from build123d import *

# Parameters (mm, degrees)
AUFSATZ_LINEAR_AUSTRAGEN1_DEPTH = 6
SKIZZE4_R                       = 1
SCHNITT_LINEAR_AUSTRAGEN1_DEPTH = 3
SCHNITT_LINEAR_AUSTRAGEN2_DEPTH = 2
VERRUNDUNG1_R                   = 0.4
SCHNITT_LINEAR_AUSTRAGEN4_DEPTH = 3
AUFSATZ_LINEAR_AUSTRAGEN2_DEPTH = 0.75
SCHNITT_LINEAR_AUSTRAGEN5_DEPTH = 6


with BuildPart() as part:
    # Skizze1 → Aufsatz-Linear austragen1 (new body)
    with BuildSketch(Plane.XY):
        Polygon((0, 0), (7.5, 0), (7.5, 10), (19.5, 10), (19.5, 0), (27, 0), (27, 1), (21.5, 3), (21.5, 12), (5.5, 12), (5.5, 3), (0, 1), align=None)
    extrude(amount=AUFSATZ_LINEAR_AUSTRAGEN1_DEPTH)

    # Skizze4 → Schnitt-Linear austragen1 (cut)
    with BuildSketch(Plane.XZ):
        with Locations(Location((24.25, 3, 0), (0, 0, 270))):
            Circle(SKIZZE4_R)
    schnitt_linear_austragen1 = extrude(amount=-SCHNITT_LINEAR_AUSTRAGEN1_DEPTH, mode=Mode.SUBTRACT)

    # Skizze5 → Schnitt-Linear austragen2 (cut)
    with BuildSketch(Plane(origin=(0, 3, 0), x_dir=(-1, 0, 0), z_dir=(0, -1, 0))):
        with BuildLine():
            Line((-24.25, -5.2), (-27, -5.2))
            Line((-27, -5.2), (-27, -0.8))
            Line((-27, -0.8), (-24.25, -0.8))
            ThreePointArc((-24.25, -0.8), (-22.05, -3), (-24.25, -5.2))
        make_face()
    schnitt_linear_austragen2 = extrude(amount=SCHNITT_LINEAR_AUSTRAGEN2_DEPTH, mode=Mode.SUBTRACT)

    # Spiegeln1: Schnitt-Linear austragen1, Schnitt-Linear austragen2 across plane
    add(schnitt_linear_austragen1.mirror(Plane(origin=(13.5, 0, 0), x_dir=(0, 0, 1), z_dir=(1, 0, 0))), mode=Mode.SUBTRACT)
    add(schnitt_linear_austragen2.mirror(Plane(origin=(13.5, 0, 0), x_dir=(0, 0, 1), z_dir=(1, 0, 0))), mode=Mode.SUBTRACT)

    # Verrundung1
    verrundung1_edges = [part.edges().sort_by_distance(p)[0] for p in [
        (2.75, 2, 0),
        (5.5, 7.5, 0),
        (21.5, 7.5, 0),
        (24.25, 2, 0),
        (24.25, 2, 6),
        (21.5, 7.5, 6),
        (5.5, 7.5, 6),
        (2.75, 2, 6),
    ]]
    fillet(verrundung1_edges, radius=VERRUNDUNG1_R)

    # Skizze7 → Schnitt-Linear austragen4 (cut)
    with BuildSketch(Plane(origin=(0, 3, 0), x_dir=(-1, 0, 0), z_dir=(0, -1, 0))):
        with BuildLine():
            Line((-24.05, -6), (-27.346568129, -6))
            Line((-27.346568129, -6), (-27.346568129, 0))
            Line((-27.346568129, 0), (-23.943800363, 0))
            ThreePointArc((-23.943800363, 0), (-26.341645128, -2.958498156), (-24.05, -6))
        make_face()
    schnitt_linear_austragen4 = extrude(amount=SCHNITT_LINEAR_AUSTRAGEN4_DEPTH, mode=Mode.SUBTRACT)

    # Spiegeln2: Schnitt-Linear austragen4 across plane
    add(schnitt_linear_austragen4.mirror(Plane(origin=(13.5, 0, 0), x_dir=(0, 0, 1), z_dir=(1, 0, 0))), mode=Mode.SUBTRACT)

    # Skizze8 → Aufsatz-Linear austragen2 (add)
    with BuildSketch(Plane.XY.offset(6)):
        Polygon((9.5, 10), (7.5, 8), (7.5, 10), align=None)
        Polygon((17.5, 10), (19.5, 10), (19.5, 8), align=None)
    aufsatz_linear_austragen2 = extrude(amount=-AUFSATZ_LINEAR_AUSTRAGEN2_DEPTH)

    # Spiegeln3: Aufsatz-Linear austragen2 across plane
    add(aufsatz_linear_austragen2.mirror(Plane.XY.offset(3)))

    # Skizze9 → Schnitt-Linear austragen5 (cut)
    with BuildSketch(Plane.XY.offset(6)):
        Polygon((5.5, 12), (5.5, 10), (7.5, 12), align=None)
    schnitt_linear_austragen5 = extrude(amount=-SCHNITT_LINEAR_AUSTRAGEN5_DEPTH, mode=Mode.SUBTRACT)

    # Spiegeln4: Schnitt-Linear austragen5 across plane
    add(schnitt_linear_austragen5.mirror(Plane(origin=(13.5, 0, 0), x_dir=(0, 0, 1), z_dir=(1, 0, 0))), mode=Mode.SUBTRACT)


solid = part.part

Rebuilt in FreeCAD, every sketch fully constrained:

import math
import FreeCAD as App
import Part
import Sketcher
Q = App.Units.Quantity


def edges_at(feature, points):
    """Names of the edges that pass closest to the given points."""
    edges = feature.Shape.Edges
    near = lambda p: min(range(len(edges)), key=lambda i: edges[i].distToShape(Part.Vertex(*p))[0])
    return sorted({f"Edge{near(p) + 1}" for p in points})

doc = App.newDocument("Part")
body = doc.addObject("PartDesign::Body", "Body")

sketch1 = body.newObject("Sketcher::SketchObject", "Sketch")
sketch1.AttachmentSupport = (doc.getObject("XY_Plane"), [""])
sketch1.MapMode = "FlatFace"
sketch1.addGeometry([
    Part.LineSegment(App.Vector(0, 0, 0), App.Vector(7.5, 0, 0)),
    Part.LineSegment(App.Vector(7.5, 0, 0), App.Vector(7.5, 10, 0)),
    Part.LineSegment(App.Vector(7.5, 10, 0), App.Vector(19.5, 10, 0)),
    Part.LineSegment(App.Vector(19.5, 10, 0), App.Vector(19.5, 0, 0)),
    Part.LineSegment(App.Vector(19.5, 0, 0), App.Vector(27, 0, 0)),
    Part.LineSegment(App.Vector(27, 0, 0), App.Vector(27, 1, 0)),
    Part.LineSegment(App.Vector(27, 1, 0), App.Vector(21.5, 3, 0)),
    Part.LineSegment(App.Vector(21.5, 3, 0), App.Vector(21.5, 12, 0)),
    Part.LineSegment(App.Vector(21.5, 12, 0), App.Vector(5.5, 12, 0)),
    Part.LineSegment(App.Vector(5.5, 12, 0), App.Vector(5.5, 3, 0)),
    Part.LineSegment(App.Vector(5.5, 3, 0), App.Vector(0, 1, 0)),
    Part.LineSegment(App.Vector(0, 1, 0), App.Vector(0, 0, 0)),
], False)
sketch1.addConstraint([
    Sketcher.Constraint("Coincident", 0, 2, 1, 1),
    Sketcher.Constraint("Coincident", 1, 2, 2, 1),
    Sketcher.Constraint("Coincident", 2, 2, 3, 1),
    Sketcher.Constraint("Coincident", 3, 2, 4, 1),
    Sketcher.Constraint("Coincident", 4, 2, 5, 1),
    Sketcher.Constraint("Coincident", 5, 2, 6, 1),
    Sketcher.Constraint("Coincident", 6, 2, 7, 1),
    Sketcher.Constraint("Coincident", 7, 2, 8, 1),
    Sketcher.Constraint("Coincident", 8, 2, 9, 1),
    Sketcher.Constraint("Coincident", 9, 2, 10, 1),
    Sketcher.Constraint("Coincident", 10, 2, 11, 1),
    Sketcher.Constraint("Coincident", 11, 2, 0, 1),
    Sketcher.Constraint("Horizontal", 0),
    Sketcher.Constraint("Vertical", 1),
    Sketcher.Constraint("Horizontal", 2),
    Sketcher.Constraint("Vertical", 3),
    Sketcher.Constraint("Horizontal", 4),
    Sketcher.Constraint("Vertical", 5),
    Sketcher.Constraint("Vertical", 7),
    Sketcher.Constraint("Horizontal", 8),
    Sketcher.Constraint("Vertical", 9),
    Sketcher.Constraint("Vertical", 11),
    Sketcher.Constraint("Coincident", 11, 2, -1, 1),
    Sketcher.Constraint("PointOnObject", 3, 2, -1),
    Sketcher.Constraint("Horizontal", 6, 2, 9, 2),
    Sketcher.Constraint("Horizontal", 5, 2, 10, 2),
    Sketcher.Constraint("Equal", 0, 4),
    Sketcher.Constraint("Equal", 6, 10),
    Sketcher.Constraint("DistanceX", 2, 1, 2, 2, Q("12 mm")),
    Sketcher.Constraint("DistanceX", 8, 2, 8, 1, Q("16 mm")),
    Sketcher.Constraint("DistanceY", 1, 1, 1, 2, Q("10 mm")),
    Sketcher.Constraint("DistanceY", 5, 1, 5, 2, Q("1 mm")),
    Sketcher.Constraint("DistanceY", 7, 1, 7, 2, Q("9 mm")),
    Sketcher.Constraint("DistanceX", 0, 1, 0, 2, Q("7.5 mm")),
    Sketcher.Constraint("DistanceY", -1, 1, 6, 2, Q("3 mm")),
])
pad1 = body.newObject("PartDesign::Pad", "Pad")
pad1.Profile = sketch1
pad1.Length = 6

sketch2 = body.newObject("Sketcher::SketchObject", "Sketch001")
sketch2.AttachmentSupport = (doc.getObject("XZ_Plane"), [""])
sketch2.MapMode = "FlatFace"
sketch2.addGeometry(Part.Circle(App.Vector(24.25, 3, 0), App.Vector(0, 0, 1), 1), False)
sketch2.addConstraint([
    Sketcher.Constraint("Diameter", 0, Q("2 mm")),
    Sketcher.Constraint("DistanceY", -1, 1, 0, 3, Q("3 mm")),
    Sketcher.Constraint("DistanceX", -1, 1, 0, 3, Q("24.25 mm")),
])
pocket1 = body.newObject("PartDesign::Pocket", "Pocket")
pocket1.Profile = sketch2
pocket1.Length = 3

sketch3 = body.newObject("Sketcher::SketchObject", "Sketch002")
sketch3.AttachmentSupport = (doc.getObject("XZ_Plane"), [""])
sketch3.MapMode = "FlatFace"
sketch3.AttachmentOffset = App.Placement(App.Vector(0, 0, -3), App.Rotation())
sketch3.addGeometry([
    Part.LineSegment(App.Vector(27, 5.2, 0), App.Vector(24.25, 5.2, 0)),
    Part.ArcOfCircle(Part.Circle(App.Vector(24.25, 3, 0), App.Vector(0, 0, 1), 2.2), math.radians(90), math.radians(270)),
    Part.LineSegment(App.Vector(24.25, 0.8, 0), App.Vector(27, 0.8, 0)),
    Part.LineSegment(App.Vector(27, 0.8, 0), App.Vector(27, 5.2, 0)),
], False)
sketch3.addConstraint([
    Sketcher.Constraint("Tangent", 0, 2, 1, 1),
    Sketcher.Constraint("Tangent", 1, 2, 2, 1),
    Sketcher.Constraint("Coincident", 2, 2, 3, 1),
    Sketcher.Constraint("Coincident", 3, 2, 0, 1),
    Sketcher.Constraint("Horizontal", 0),
    Sketcher.Constraint("Horizontal", 2),
    Sketcher.Constraint("Vertical", 3),
    Sketcher.Constraint("Radius", 1, Q("2.2 mm")),
    Sketcher.Constraint("DistanceY", -1, 1, 1, 3, Q("3 mm")),
    Sketcher.Constraint("DistanceX", -1, 1, 2, 2, Q("27 mm")),
    Sketcher.Constraint("DistanceX", 0, 2, 0, 1, Q("2.75 mm")),
])
pocket2 = body.newObject("PartDesign::Pocket", "Pocket001")
pocket2.Profile = sketch3
pocket2.Length = 2
pocket2.Reversed = True
doc.recompute()

datumplane = body.newObject("PartDesign::Plane", "DatumPlane")
datumplane.AttachmentSupport = (doc.getObject("YZ_Plane"), [""])
datumplane.MapMode = "FlatFace"
datumplane.AttachmentOffset = App.Placement(App.Vector(0, 0, 13.5), App.Rotation())
mirrored = body.newObject("PartDesign::Mirrored", "Mirrored")
mirrored.Originals = [pocket1, pocket2]
mirrored.MirrorPlane = (datumplane, [""])
body.Tip = mirrored
doc.recompute()

fillet = body.newObject("PartDesign::Fillet", "Fillet")
fillet.Base = (mirrored, edges_at(mirrored, [
    (2.75, 2, 0),
    (5.5, 7.5, 0),
    (21.5, 7.5, 0),
    (24.25, 2, 0),
    (24.25, 2, 6),
    (21.5, 7.5, 6),
    (5.5, 7.5, 6),
    (2.75, 2, 6),
]))
fillet.Radius = 0.4

sketch4 = body.newObject("Sketcher::SketchObject", "Sketch003")
sketch4.AttachmentSupport = (doc.getObject("XZ_Plane"), [""])
sketch4.MapMode = "FlatFace"
sketch4.AttachmentOffset = App.Placement(App.Vector(0, 0, -3), App.Rotation())
sketch4.addGeometry([
    Part.LineSegment(App.Vector(27.346568, 6, 0), App.Vector(24.05, 6, 0)),
    Part.ArcOfCircle(Part.Circle(App.Vector(23.250087, 3.013219, 0), App.Vector(0, 0, 1), 3.092042), math.radians(-77.035087), math.radians(75.007035)),
    Part.LineSegment(App.Vector(23.9438, 0, 0), App.Vector(27.346568, 0, 0)),
    Part.LineSegment(App.Vector(27.346568, 0, 0), App.Vector(27.346568, 6, 0)),
], False)
sketch4.addConstraint([
    Sketcher.Constraint("Coincident", 0, 2, 1, 2),
    Sketcher.Constraint("Coincident", 1, 1, 2, 1),
    Sketcher.Constraint("Coincident", 2, 2, 3, 1),
    Sketcher.Constraint("Coincident", 3, 2, 0, 1),
    Sketcher.Constraint("Horizontal", 0),
    Sketcher.Constraint("Horizontal", 2),
    Sketcher.Constraint("Vertical", 3),
    Sketcher.Constraint("PointOnObject", 1, 1, -1),
    Sketcher.Constraint("DistanceY", 3, 1, 3, 2, Q("6 mm")),
    Sketcher.Constraint("DistanceX", -1, 1, 0, 2, Q("24.05 mm")),
    Sketcher.Constraint("Radius", 1, Q("3.092042 mm")),
    Sketcher.Constraint("DistanceX", 0, 2, 0, 1, Q("3.296568 mm")),
    Sketcher.Constraint("DistanceX", -1, 1, 1, 1, Q("23.9438 mm")),
])
pocket3 = body.newObject("PartDesign::Pocket", "Pocket002")
pocket3.Profile = sketch4
pocket3.Length = 3
pocket3.Reversed = True
doc.recompute()

datumplane2 = body.newObject("PartDesign::Plane", "DatumPlane001")
datumplane2.AttachmentSupport = (doc.getObject("YZ_Plane"), [""])
datumplane2.MapMode = "FlatFace"
datumplane2.AttachmentOffset = App.Placement(App.Vector(0, 0, 13.5), App.Rotation())
mirrored2 = body.newObject("PartDesign::Mirrored", "Mirrored001")
mirrored2.Originals = [pocket3]
mirrored2.MirrorPlane = (datumplane2, [""])
body.Tip = mirrored2

sketch5 = body.newObject("Sketcher::SketchObject", "Sketch004")
sketch5.AttachmentSupport = (doc.getObject("XY_Plane"), [""])
sketch5.MapMode = "FlatFace"
sketch5.AttachmentOffset = App.Placement(App.Vector(0, 0, 6), App.Rotation())
sketch5.addGeometry([
    Part.LineSegment(App.Vector(7.5, 8, 0), App.Vector(9.5, 10, 0)),
    Part.LineSegment(App.Vector(9.5, 10, 0), App.Vector(7.5, 10, 0)),
    Part.LineSegment(App.Vector(7.5, 10, 0), App.Vector(7.5, 8, 0)),
    Part.LineSegment(App.Vector(19.5, 10, 0), App.Vector(17.5, 10, 0)),
    Part.LineSegment(App.Vector(17.5, 10, 0), App.Vector(19.5, 8, 0)),
    Part.LineSegment(App.Vector(19.5, 8, 0), App.Vector(19.5, 10, 0)),
], False)
sketch5.addConstraint([
    Sketcher.Constraint("Coincident", 0, 2, 1, 1),
    Sketcher.Constraint("Coincident", 1, 2, 2, 1),
    Sketcher.Constraint("Coincident", 2, 2, 0, 1),
    Sketcher.Constraint("Coincident", 3, 2, 4, 1),
    Sketcher.Constraint("Coincident", 4, 2, 5, 1),
    Sketcher.Constraint("Coincident", 5, 2, 3, 1),
    Sketcher.Constraint("Horizontal", 1),
    Sketcher.Constraint("Vertical", 2),
    Sketcher.Constraint("Horizontal", 3),
    Sketcher.Constraint("Vertical", 5),
    Sketcher.Constraint("Perpendicular", 0, 4),
    Sketcher.Constraint("Horizontal", 1, 2, 3, 2),
    Sketcher.Constraint("Horizontal", 2, 2, 4, 2),
    Sketcher.Constraint("Equal", 1, 3),
    Sketcher.Constraint("DistanceX", 1, 2, 1, 1, Q("2 mm")),
    Sketcher.Constraint("DistanceY", -1, 1, 0, 2, Q("10 mm")),
    Sketcher.Constraint("DistanceX", 0, 2, 3, 2, Q("8 mm")),
    Sketcher.Constraint("DistanceX", -1, 1, 0, 2, Q("9.5 mm")),
])
pad2 = body.newObject("PartDesign::Pad", "Pad001")
pad2.Profile = sketch5
pad2.Length = 0.75
pad2.Reversed = True
doc.recompute()

datumplane3 = body.newObject("PartDesign::Plane", "DatumPlane002")
datumplane3.AttachmentSupport = (doc.getObject("XY_Plane"), [""])
datumplane3.MapMode = "FlatFace"
datumplane3.AttachmentOffset = App.Placement(App.Vector(0, 0, 3), App.Rotation())
mirrored3 = body.newObject("PartDesign::Mirrored", "Mirrored002")
mirrored3.Originals = [pad2]
mirrored3.MirrorPlane = (datumplane3, [""])
body.Tip = mirrored3

sketch6 = body.newObject("Sketcher::SketchObject", "Sketch005")
sketch6.AttachmentSupport = (doc.getObject("XY_Plane"), [""])
sketch6.MapMode = "FlatFace"
sketch6.AttachmentOffset = App.Placement(App.Vector(0, 0, 6), App.Rotation())
sketch6.addGeometry([
    Part.LineSegment(App.Vector(5.5, 12, 0), App.Vector(5.5, 10, 0)),
    Part.LineSegment(App.Vector(5.5, 10, 0), App.Vector(7.5, 12, 0)),
    Part.LineSegment(App.Vector(7.5, 12, 0), App.Vector(5.5, 12, 0)),
], False)
sketch6.addConstraint([
    Sketcher.Constraint("Coincident", 0, 2, 1, 1),
    Sketcher.Constraint("Coincident", 1, 2, 2, 1),
    Sketcher.Constraint("Coincident", 2, 2, 0, 1),
    Sketcher.Constraint("Vertical", 0),
    Sketcher.Constraint("Horizontal", 2),
    Sketcher.Constraint("Equal", 2, 0),
    Sketcher.Constraint("DistanceX", 2, 2, 2, 1, Q("2 mm")),
    Sketcher.Constraint("DistanceY", -1, 1, 0, 2, Q("10 mm")),
    Sketcher.Constraint("DistanceX", -1, 1, 0, 2, Q("5.5 mm")),
])
pocket4 = body.newObject("PartDesign::Pocket", "Pocket003")
pocket4.Profile = sketch6
pocket4.Length = 6
doc.recompute()

datumplane4 = body.newObject("PartDesign::Plane", "DatumPlane003")
datumplane4.AttachmentSupport = (doc.getObject("YZ_Plane"), [""])
datumplane4.MapMode = "FlatFace"
datumplane4.AttachmentOffset = App.Placement(App.Vector(0, 0, 13.5), App.Rotation())
mirrored4 = body.newObject("PartDesign::Mirrored", "Mirrored003")
mirrored4.Originals = [pocket4]
mirrored4.MirrorPlane = (datumplane4, [""])
body.Tip = mirrored4

doc.recompute()
